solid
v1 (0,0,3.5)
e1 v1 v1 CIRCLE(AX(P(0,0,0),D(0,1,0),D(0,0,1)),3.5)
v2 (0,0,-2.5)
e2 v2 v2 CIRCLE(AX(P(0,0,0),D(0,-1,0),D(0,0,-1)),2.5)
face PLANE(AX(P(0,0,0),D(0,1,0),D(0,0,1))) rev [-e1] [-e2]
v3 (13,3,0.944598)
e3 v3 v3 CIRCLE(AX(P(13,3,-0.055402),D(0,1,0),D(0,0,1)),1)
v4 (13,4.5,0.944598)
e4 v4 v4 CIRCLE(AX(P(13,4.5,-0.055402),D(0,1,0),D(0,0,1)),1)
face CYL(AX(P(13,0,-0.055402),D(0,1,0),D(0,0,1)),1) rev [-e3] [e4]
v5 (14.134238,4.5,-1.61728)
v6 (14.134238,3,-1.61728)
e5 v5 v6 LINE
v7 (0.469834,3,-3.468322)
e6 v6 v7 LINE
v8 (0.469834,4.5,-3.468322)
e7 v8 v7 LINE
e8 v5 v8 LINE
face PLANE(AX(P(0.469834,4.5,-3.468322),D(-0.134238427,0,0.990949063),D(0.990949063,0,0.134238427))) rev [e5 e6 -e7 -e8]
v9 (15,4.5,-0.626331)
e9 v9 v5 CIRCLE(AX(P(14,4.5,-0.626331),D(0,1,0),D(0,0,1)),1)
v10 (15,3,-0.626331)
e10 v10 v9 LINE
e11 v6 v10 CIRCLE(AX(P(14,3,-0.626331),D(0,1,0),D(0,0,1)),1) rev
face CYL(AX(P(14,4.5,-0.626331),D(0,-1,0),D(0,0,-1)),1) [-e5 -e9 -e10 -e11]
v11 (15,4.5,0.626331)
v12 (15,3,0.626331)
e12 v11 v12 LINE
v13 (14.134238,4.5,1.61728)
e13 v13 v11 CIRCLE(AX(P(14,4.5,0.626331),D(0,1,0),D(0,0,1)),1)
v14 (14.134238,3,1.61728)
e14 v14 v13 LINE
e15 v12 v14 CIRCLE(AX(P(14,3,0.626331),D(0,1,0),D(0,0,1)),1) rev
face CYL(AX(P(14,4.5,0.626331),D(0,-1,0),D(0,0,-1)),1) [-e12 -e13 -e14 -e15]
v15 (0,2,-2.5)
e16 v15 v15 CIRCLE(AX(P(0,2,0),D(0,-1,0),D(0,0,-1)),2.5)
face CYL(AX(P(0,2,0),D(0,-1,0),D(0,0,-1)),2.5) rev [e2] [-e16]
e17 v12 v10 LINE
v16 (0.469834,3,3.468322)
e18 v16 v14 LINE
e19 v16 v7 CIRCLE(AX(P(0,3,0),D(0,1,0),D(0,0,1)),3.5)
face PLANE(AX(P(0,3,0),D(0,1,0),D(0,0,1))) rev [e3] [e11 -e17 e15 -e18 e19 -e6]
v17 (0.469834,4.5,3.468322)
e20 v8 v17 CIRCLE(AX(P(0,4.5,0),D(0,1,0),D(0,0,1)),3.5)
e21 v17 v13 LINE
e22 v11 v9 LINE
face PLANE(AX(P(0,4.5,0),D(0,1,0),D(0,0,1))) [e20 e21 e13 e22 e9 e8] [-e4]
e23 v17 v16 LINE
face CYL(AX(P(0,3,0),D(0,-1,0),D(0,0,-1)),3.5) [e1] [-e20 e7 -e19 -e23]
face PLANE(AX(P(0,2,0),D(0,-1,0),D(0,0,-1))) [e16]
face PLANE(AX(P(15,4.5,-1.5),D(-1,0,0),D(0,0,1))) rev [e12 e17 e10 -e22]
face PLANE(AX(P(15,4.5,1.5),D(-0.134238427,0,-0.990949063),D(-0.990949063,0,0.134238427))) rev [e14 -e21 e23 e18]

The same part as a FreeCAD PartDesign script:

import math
import FreeCAD as App
import Part
import Sketcher


def edges_at(feature, points):
    """Names of the edges that pass closest to the given points."""
    edges = feature.Shape.Edges
    near = lambda p: min(range(len(edges)), key=lambda i: edges[i].distToShape(Part.Vertex(*p))[0])
    return sorted({f"Edge{near(p) + 1}" for p in points})

doc = App.newDocument("Part")
params = doc.addObject("Spreadsheet::Sheet", "Params")
for row, (alias, value) in enumerate([
    ("sketch1_diameter", "7 mm"),
    ("pad1_length", "3 mm"),
    ("sketch2_radius", "3.5 mm"),
    ("sketch2_height", "3 mm"),
    ("pad2_length", "1.5 mm"),
    ("sketch3_diameter", "5 mm"),
    ("pocket1_length", "2 mm"),
    ("fillet_radius", "1 mm"),
    ("sketch4_diameter", "2 mm"),
], start=1):
    params.set(f"A{row}", alias)
    params.set(f"B{row}", "=" + value)
    params.setAlias(f"B{row}", alias)

body = doc.addObject("PartDesign::Body", "Body")

# Sketch on XZ plane
sketch1 = body.newObject("Sketcher::SketchObject", "Sketch")
sketch1.AttachmentSupport = (doc.getObject("XZ_Plane"), [""])
sketch1.MapMode = "FlatFace"
sketch1.addGeometry(Part.Circle(App.Vector(0, 0, 0), App.Vector(0, 0, 1), 3.5), False)
sketch1.addConstraint(Sketcher.Constraint("Coincident", 0, 3, -1, 1))
sketch1.addConstraint(Sketcher.Constraint("Diameter", 0, 7.0))
sketch1.setExpression("Constraints[1]", "Params.sketch1_diameter")
pad1 = body.newObject("PartDesign::Pad", "Pad")
pad1.Profile = sketch1
pad1.setExpression("Length", "Params.pad1_length")
pad1.Reversed = True

# Sketch on XZ plane
sketch2 = body.newObject("Sketcher::SketchObject", "Sketch001")
sketch2.AttachmentSupport = (doc.getObject("XZ_Plane"), [""])
sketch2.MapMode = "FlatFace"
sketch2.AttachmentOffset = App.Placement(App.Vector(0, 0, -3), App.Rotation())
sketch2.addGeometry(Part.LineSegment(App.Vector(15, 1.5, 0), App.Vector(15, -1.5, 0)), False)
sketch2.addGeometry(Part.LineSegment(App.Vector(15, -1.5, 0), App.Vector(0.5, -3.5, 0)), False)
sketch2.addGeometry(Part.ArcOfCircle(Part.Circle(App.Vector(0, 0, 0), App.Vector(0, 0, 1), 3.5), math.radians(82), math.radians(278)), False)
sketch2.addGeometry(Part.LineSegment(App.Vector(0.5, 3.5, 0), App.Vector(15, 1.5, 0)), False)
sketch2.addConstraint(Sketcher.Constraint("Coincident", 0, 2, 1, 1))
sketch2.addConstraint(Sketcher.Constraint("Tangent", 1, 2, 2, 2))
sketch2.addConstraint(Sketcher.Constraint("Tangent", 2, 1, 3, 1))
sketch2.addConstraint(Sketcher.Constraint("Coincident", 3, 2, 0, 1))
sketch2.addConstraint(Sketcher.Constraint("Vertical", 0))
sketch2.addConstraint(Sketcher.Constraint("Coincident", 2, 3, -1, 1))
sketch2.addConstraint(Sketcher.Constraint("Vertical", 1, 2, 2, 1))
sketch2.addConstraint(Sketcher.Constraint("Radius", 2, 3.5))
sketch2.addConstraint(Sketcher.Constraint("DistanceY", 0, 2, 0, 1, 3.0))
sketch2.addConstraint(Sketcher.Constraint("DistanceX", -1, 1, 0, 2, 15.0))
sketch2.setExpression("Constraints[7]", "Params.sketch2_radius")
sketch2.setExpression("Constraints[8]", "Params.sketch2_height")
pad2 = body.newObject("PartDesign::Pad", "Pad001")
pad2.Profile = sketch2
pad2.setExpression("Length", "Params.pad2_length")
pad2.Reversed = True

# Sketch on XZ plane
sketch3 = body.newObject("Sketcher::SketchObject", "Sketch002")
sketch3.AttachmentSupport = (doc.getObject("XZ_Plane"), [""])
sketch3.MapMode = "FlatFace"
sketch3.addGeometry(Part.Circle(App.Vector(0, 0, 0), App.Vector(0, 0, 1), 2.5), False)
sketch3.addConstraint(Sketcher.Constraint("Coincident", 0, 3, -1, 1))
sketch3.addConstraint(Sketcher.Constraint("Diameter", 0, 5.0))
sketch3.setExpression("Constraints[1]", "Params.sketch3_diameter")
pocket1 = body.newObject("PartDesign::Pocket", "Pocket")
pocket1.Profile = sketch3
pocket1.setExpression("Length", "Params.pocket1_length")
doc.recompute()

fillet = body.newObject("PartDesign::Fillet", "Fillet")
fillet.Base = (pocket1, edges_at(pocket1, [(15, 3.75, 1.5), (15, 3.75, -1.5)]))
fillet.setExpression("Radius", "Params.fillet_radius")

# Sketch on XZ plane
sketch4 = body.newObject("Sketcher::SketchObject", "Sketch003")
sketch4.AttachmentSupport = (doc.getObject("XZ_Plane"), [""])
sketch4.MapMode = "FlatFace"
sketch4.AttachmentOffset = App.Placement(App.Vector(0, 0, -4.5), App.Rotation())
sketch4.addGeometry(Part.Circle(App.Vector(13, -0.1, 0), App.Vector(0, 0, 1), 1), False)
sketch4.addConstraint(Sketcher.Constraint("Diameter", 0, 2.0))
sketch4.addConstraint(Sketcher.Constraint("DistanceX", -1, 1, 0, 3, 13.0))
sketch4.addConstraint(Sketcher.Constraint("DistanceY", 0, 3, -1, 1, 0.055402))
sketch4.setExpression("Constraints[0]", "Params.sketch4_diameter")
pocket2 = body.newObject("PartDesign::Pocket", "Pocket001")
pocket2.Profile = sketch4
pocket2.Type = "ThroughAll"
pocket2.Reversed = True

doc.recompute()
